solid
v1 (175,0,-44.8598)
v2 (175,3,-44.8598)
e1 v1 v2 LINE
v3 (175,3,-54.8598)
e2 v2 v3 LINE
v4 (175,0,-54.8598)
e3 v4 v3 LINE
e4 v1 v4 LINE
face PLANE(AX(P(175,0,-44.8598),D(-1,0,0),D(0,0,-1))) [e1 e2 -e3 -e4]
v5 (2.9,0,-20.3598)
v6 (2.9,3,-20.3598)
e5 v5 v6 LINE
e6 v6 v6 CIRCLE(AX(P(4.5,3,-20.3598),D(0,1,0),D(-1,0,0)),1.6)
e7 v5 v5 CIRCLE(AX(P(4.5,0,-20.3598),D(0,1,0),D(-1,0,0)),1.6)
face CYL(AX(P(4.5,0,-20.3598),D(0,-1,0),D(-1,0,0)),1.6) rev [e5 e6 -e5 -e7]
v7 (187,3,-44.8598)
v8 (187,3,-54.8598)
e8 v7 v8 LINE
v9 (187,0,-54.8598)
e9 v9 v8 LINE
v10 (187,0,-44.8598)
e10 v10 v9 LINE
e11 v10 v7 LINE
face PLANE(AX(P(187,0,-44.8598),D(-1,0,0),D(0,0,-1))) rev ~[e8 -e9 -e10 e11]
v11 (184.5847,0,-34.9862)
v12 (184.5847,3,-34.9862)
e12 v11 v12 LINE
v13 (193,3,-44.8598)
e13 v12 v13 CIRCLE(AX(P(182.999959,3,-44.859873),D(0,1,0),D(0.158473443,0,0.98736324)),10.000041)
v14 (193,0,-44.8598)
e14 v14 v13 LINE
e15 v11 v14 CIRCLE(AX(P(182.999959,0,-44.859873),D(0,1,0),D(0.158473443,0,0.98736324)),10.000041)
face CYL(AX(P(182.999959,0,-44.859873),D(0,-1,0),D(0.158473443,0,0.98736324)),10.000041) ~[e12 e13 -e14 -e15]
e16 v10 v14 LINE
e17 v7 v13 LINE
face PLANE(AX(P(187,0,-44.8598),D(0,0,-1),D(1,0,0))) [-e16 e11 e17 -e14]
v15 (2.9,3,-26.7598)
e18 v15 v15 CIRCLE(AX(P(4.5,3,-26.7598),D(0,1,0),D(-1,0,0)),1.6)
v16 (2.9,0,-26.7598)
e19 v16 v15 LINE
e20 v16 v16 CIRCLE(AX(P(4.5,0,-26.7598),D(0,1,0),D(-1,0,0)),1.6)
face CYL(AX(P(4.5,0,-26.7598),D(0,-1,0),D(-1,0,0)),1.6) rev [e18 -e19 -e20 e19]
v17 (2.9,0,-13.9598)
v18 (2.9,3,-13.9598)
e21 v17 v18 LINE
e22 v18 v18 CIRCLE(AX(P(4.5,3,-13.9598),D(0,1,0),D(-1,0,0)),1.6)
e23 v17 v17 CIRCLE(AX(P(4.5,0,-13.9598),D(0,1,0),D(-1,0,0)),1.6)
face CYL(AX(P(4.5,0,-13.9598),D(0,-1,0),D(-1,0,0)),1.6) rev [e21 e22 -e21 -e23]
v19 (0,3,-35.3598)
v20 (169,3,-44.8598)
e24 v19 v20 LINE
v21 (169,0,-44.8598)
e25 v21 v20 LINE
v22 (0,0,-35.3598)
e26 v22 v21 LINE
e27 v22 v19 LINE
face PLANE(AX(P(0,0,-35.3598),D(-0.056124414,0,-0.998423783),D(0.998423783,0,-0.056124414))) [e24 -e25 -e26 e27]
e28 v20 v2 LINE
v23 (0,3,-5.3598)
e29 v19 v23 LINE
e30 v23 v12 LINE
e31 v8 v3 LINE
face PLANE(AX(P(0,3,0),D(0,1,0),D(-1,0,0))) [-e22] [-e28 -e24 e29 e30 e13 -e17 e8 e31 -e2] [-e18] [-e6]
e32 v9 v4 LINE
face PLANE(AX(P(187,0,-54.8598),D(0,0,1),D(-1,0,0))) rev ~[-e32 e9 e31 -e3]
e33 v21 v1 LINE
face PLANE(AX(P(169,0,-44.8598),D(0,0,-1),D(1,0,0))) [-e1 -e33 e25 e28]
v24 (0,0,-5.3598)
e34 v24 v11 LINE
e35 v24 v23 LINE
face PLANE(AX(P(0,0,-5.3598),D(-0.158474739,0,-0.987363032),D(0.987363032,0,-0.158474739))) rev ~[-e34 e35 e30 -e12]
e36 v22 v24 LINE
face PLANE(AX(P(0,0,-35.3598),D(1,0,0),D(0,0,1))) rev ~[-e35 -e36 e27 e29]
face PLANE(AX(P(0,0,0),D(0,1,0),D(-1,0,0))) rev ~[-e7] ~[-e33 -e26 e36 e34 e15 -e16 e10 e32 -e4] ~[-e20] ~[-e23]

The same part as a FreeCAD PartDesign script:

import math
import FreeCAD as App
import Part
import Sketcher
Q = App.Units.Quantity

doc = App.newDocument("Part")
body = doc.addObject("PartDesign::Body", "Body")

# Sketch on XZ plane
sketch1 = body.newObject("Sketcher::SketchObject", "Sketch")
sketch1.AttachmentSupport = (doc.getObject("XZ_Plane"), [""])
sketch1.MapMode = "FlatFace"
sketch1.addGeometry(Part.LineSegment(App.Vector(169, -44.9, 0), App.Vector(0, -35.4, 0)), False)
sketch1.addGeometry(Part.LineSegment(App.Vector(0, -35.4, 0), App.Vector(0, -5.4, 0)), False)
sketch1.addGeometry(Part.LineSegment(App.Vector(0, -5.4, 0), App.Vector(184.6, -35, 0)), False)
sketch1.addGeometry(Part.ArcOfCircle(Part.Circle(App.Vector(183, -44.9, 0), App.Vector(0, 0, 1), 10), math.radians(0), math.radians(81)), False)
sketch1.addGeometry(Part.LineSegment(App.Vector(193, -44.9, 0), App.Vector(187, -44.9, 0)), False)
sketch1.addGeometry(Part.LineSegment(App.Vector(187, -44.9, 0), App.Vector(187, -54.9, 0)), False)
sketch1.addGeometry(Part.LineSegment(App.Vector(187, -54.9, 0), App.Vector(175, -54.9, 0)), False)
sketch1.addGeometry(Part.LineSegment(App.Vector(175, -54.9, 0), App.Vector(175, -44.9, 0)), False)
sketch1.addGeometry(Part.LineSegment(App.Vector(175, -44.9, 0), App.Vector(169, -44.9, 0)), False)
sketch1.addGeometry(Part.Circle(App.Vector(4.5, -26.8, 0), App.Vector(0, 0, 1), 1.6), False)
sketch1.addGeometry(Part.Circle(App.Vector(4.5, -20.4, 0), App.Vector(0, 0, 1), 1.6), False)
sketch1.addGeometry(Part.Circle(App.Vector(4.5, -14, 0), App.Vector(0, 0, 1), 1.6), False)
sketch1.addConstraint(Sketcher.Constraint("Coincident", 0, 2, 1, 1))
sketch1.addConstraint(Sketcher.Constraint("Coincident", 1, 2, 2, 1))
sketch1.addConstraint(Sketcher.Constraint("Tangent", 2, 2, 3, 2))
sketch1.addConstraint(Sketcher.Constraint("Coincident", 3, 1, 4, 1))
sketch1.addConstraint(Sketcher.Constraint("Coincident", 4, 2, 5, 1))
sketch1.addConstraint(Sketcher.Constraint("Coincident", 5, 2, 6, 1))
sketch1.addConstraint(Sketcher.Constraint("Coincident", 6, 2, 7, 1))
sketch1.addConstraint(Sketcher.Constraint("Coincident", 7, 2, 8, 1))
sketch1.addConstraint(Sketcher.Constraint("Coincident", 8, 2, 0, 1))
sketch1.addConstraint(Sketcher.Constraint("Vertical", 1))
sketch1.addConstraint(Sketcher.Constraint("Horizontal", 4))
sketch1.addConstraint(Sketcher.Constraint("Vertical", 5))
sketch1.addConstraint(Sketcher.Constraint("Horizontal", 6))
sketch1.addConstraint(Sketcher.Constraint("Vertical", 7))
sketch1.addConstraint(Sketcher.Constraint("Horizontal", 8))
sketch1.addConstraint(Sketcher.Constraint("Equal", 9, 10))
sketch1.addConstraint(Sketcher.Constraint("Equal", 10, 11))
sketch1.addConstraint(Sketcher.Constraint("PointOnObject", 0, 2, -2))
sketch1.addConstraint(Sketcher.Constraint("Horizontal", 4, 2, 7, 2))
sketch1.addConstraint(Sketcher.Constraint("Vertical", 9, 3, 10, 3))
sketch1.addConstraint(Sketcher.Constraint("Vertical", 10, 3, 11, 3))
sketch1.addConstraint(Sketcher.Constraint("Equal", 4, 8))
sketch1.addConstraint(Sketcher.Constraint("Radius", 3, Q("10 mm")))
sketch1.addConstraint(Sketcher.Constraint("DistanceX", 4, 2, 4, 1, Q("6 mm")))
sketch1.addConstraint(Sketcher.Constraint("DistanceY", 1, 1, 1, 2, Q("30 mm")))
sketch1.addConstraint(Sketcher.Constraint("DistanceY", 5, 2, 5, 1, Q("10 mm")))
sketch1.addConstraint(Sketcher.Constraint("DistanceY", 5, 2, 3, 3, Q("10 mm")))
sketch1.addConstraint(Sketcher.Constraint("Diameter", 9, Q("3.2 mm")))
sketch1.addConstraint(Sketcher.Constraint("DistanceX", -1, 1, 9, 3, Q("4.5 mm")))
sketch1.addConstraint(Sketcher.Constraint("DistanceY", 9, 3, 10, 3, Q("6.4 mm")))
sketch1.addConstraint(Sketcher.Constraint("DistanceY", 10, 3, 11, 3, Q("6.4 mm")))
sketch1.addConstraint(Sketcher.Constraint("DistanceX", 6, 2, 6, 1, Q("12 mm")))
sketch1.addConstraint(Sketcher.Constraint("DistanceX", -1, 1, 3, 3, Q("183 mm")))
sketch1.addConstraint(Sketcher.Constraint("DistanceY", 0, 2, 10, 3, Q("15 mm")))
sketch1.addConstraint(Sketcher.Constraint("DistanceY", 3, 3, 9, 3, Q("18.1 mm")))
sketch1.addConstraint(Sketcher.Constraint("DistanceY", 3, 3, -1, 1, Q("44.8598 mm")))
pad1 = body.newObject("PartDesign::Pad", "Pad")
pad1.Profile = sketch1
pad1.Length = 3
pad1.Reversed = True

doc.recompute()
